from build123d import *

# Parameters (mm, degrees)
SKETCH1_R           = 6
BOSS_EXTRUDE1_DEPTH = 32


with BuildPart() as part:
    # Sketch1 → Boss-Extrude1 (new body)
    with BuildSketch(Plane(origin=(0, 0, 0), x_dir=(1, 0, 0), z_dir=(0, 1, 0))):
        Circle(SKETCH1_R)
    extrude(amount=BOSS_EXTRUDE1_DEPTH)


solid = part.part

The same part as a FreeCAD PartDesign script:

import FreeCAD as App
import Part
import Sketcher

V = App.Vector
Q = App.Units.Quantity

doc = App.newDocument("Part")
params = doc.addObject("Spreadsheet::Sheet", "Params")
for row, (alias, value) in enumerate([
    ("sketch1_diameter", "12 mm"),
    ("pad1_length", "32 mm"),
], start=1):
    params.set(f"A{row}", alias)
    params.set(f"B{row}", "=" + value)
    params.setAlias(f"B{row}", alias)

body = doc.addObject("PartDesign::Body", "Body")

sketch1 = doc.addObject("Sketcher::SketchObject", "Sketch")
body.addObject(sketch1)
sketch1.AttachmentSupport = (doc.XZ_Plane, [""])
sketch1.MapMode = "FlatFace"
sketch1.addGeometry(Part.Circle(V(0, 0, 0), V(0, 0, 1), 6), False)
sketch1.addConstraint([
    Sketcher.Constraint("Coincident", 0, 3, -1, 1),
    Sketcher.Constraint("Diameter", 0, Q("12 mm")),
])
sketch1.setExpression("Constraints[1]", "Params.sketch1_diameter")
pad1 = doc.addObject("PartDesign::Pad", "Pad")
body.addObject(pad1)
pad1.Profile = sketch1
pad1.setExpression("Length", "Params.pad1_length")
pad1.Reversed = True

doc.recompute()
